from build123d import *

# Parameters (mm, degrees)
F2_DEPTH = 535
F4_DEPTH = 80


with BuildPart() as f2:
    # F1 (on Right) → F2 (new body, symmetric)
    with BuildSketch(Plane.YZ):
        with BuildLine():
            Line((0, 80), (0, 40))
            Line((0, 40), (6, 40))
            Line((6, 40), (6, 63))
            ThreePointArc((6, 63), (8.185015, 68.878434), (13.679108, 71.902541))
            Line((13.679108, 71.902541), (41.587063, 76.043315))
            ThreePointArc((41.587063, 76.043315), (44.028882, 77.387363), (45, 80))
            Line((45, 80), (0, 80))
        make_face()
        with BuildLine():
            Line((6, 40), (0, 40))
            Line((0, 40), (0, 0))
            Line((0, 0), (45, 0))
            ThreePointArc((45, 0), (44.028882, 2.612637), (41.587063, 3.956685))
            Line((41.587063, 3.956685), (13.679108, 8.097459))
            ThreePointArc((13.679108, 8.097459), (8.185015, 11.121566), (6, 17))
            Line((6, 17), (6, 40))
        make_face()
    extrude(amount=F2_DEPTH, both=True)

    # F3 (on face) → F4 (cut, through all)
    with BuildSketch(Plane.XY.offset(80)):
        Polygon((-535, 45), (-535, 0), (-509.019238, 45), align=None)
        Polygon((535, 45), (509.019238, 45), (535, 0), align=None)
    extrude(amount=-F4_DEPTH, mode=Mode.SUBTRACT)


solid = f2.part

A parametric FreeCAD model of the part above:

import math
import FreeCAD as App
import Part
import Sketcher
Q = App.Units.Quantity


def add_polygon(sketch, points):
    """Adds a closed chain of lines whose ends are joined by coincident constraints."""
    first, n = sketch.GeometryCount, len(points)
    for a, b in zip(points, points[1:] + points[:1]):
        sketch.addGeometry(Part.LineSegment(App.Vector(*a, 0), App.Vector(*b, 0)), False)
    for i in range(n):
        sketch.addConstraint(Sketcher.Constraint("Coincident", first + i, 2, first + (i + 1) % n, 1))

doc = App.newDocument("Part")
body = doc.addObject("PartDesign::Body", "Body")

# Sketch on YZ plane
sketch1 = body.newObject("Sketcher::SketchObject", "Sketch")
sketch1.AttachmentSupport = (doc.getObject("YZ_Plane"), [""])
sketch1.MapMode = "FlatFace"
sketch1.addGeometry([
    Part.LineSegment(App.Vector(0, 80, 0), App.Vector(0, 0, 0)),  # 0
    Part.LineSegment(App.Vector(0, 0, 0), App.Vector(45, 0, 0)),  # 1
    Part.ArcOfCircle(Part.Circle(App.Vector(41, -0.000001, 0), App.Vector(0, 0, 1), 4), math.radians(0.000007), math.radians(81.560451)),  # 2
    Part.LineSegment(App.Vector(41.587063, 3.956685, 0), App.Vector(13.679108, 8.097459, 0)),  # 3
    Part.ArcOfCircle(Part.Circle(App.Vector(14.999998, 16.999999, 0), App.Vector(0, 0, 1), 8.999998), math.radians(179.999991), math.radians(261.560467)),  # 4
    Part.LineSegment(App.Vector(6, 17, 0), App.Vector(6, 63, 0)),  # 5
    Part.ArcOfCircle(Part.Circle(App.Vector(14.999998, 63.000001, 0), App.Vector(0, 0, 1), 8.999998), math.radians(98.439533), math.radians(180.000009)),  # 6
    Part.LineSegment(App.Vector(13.679108, 71.902541, 0), App.Vector(41.587063, 76.043315, 0)),  # 7
    Part.ArcOfCircle(Part.Circle(App.Vector(41, 80.000001, 0), App.Vector(0, 0, 1), 4), math.radians(-81.560451), math.radians(-0.000007)),  # 8
    Part.LineSegment(App.Vector(45, 80, 0), App.Vector(0, 80, 0)),  # 9
], False)
sketch1.addConstraint([
    Sketcher.Constraint("Coincident", 0, 2, 1, 1),
    Sketcher.Constraint("Coincident", 1, 2, 2, 1),
    Sketcher.Constraint("Tangent", 2, 2, 3, 1),
    Sketcher.Constraint("Tangent", 3, 2, 4, 2),
    Sketcher.Constraint("Tangent", 4, 1, 5, 1),
    Sketcher.Constraint("Tangent", 5, 2, 6, 2),
    Sketcher.Constraint("Tangent", 6, 1, 7, 1),
    Sketcher.Constraint("Tangent", 7, 2, 8, 1),
    Sketcher.Constraint("Coincident", 8, 2, 9, 1),
    Sketcher.Constraint("Coincident", 9, 2, 0, 1),
    Sketcher.Constraint("Vertical", 0),
    Sketcher.Constraint("Horizontal", 1),
    Sketcher.Constraint("Vertical", 5),
    Sketcher.Constraint("Horizontal", 9),
    Sketcher.Constraint("Coincident", 0, 2, -1, 1),
    Sketcher.Constraint("Equal", 4, 6),
    Sketcher.Constraint("Equal", 2, 8),
    Sketcher.Constraint("PointOnObject", 2, 3, -1),
    Sketcher.Constraint("Vertical", 2, 3, 8, 3),
    Sketcher.Constraint("Vertical", 3, 2, 6, 1),
    Sketcher.Constraint("Radius", 2, 4.0),
    Sketcher.Constraint("DistanceX", 1, 1, 1, 2, 45.0),
    Sketcher.Constraint("DistanceY", 0, 2, 0, 1, 80.0),
    Sketcher.Constraint("DistanceY", 5, 1, 5, 2, 46.0),
    Sketcher.Constraint("DistanceY", -1, 1, 4, 3, 16.999999),
    Sketcher.Constraint("DistanceX", -1, 1, 4, 1, 6.0),
    Sketcher.Constraint("DistanceX", 4, 3, 2, 3, 26.000002),
])
pad1 = body.newObject("PartDesign::Pad", "Pad")
pad1.Profile = sketch1
pad1.Length = 1070
pad1.Midplane = True

# Sketch on XY plane
sketch2 = body.newObject("Sketcher::SketchObject", "Sketch001")
sketch2.AttachmentSupport = (doc.getObject("XY_Plane"), [""])
sketch2.MapMode = "FlatFace"
sketch2.AttachmentOffset = App.Placement(App.Vector(0, 0, 80), App.Rotation())
add_polygon(sketch2, [(-535, 45), (-535, 0), (-509.019238, 45)])  # lines 0-2
add_polygon(sketch2, [(535, 45), (509.019238, 45), (535, 0)])  # lines 3-5
sketch2.addConstraint([
    Sketcher.Constraint("Vertical", 0),
    Sketcher.Constraint("Horizontal", 2),
    Sketcher.Constraint("Horizontal", 3),
    Sketcher.Constraint("Vertical", 5),
    Sketcher.Constraint("Symmetric", 0, 2, 4, 2, -1, 1),
    Sketcher.Constraint("Symmetric", 1, 2, 3, 2, -2),
    Sketcher.Constraint("PointOnObject", 0, 2, -1),
    Sketcher.Constraint("DistanceY", 0, 2, 0, 1, 45.0),
    Sketcher.Constraint("Angle", 1, Q("60 deg")),
    Sketcher.Constraint("DistanceX", 0, 2, -1, 1, 535.0),
])
pocket1 = body.newObject("PartDesign::Pocket", "Pocket")
pocket1.Profile = sketch2
pocket1.Type = "ThroughAll"

doc.recompute()
